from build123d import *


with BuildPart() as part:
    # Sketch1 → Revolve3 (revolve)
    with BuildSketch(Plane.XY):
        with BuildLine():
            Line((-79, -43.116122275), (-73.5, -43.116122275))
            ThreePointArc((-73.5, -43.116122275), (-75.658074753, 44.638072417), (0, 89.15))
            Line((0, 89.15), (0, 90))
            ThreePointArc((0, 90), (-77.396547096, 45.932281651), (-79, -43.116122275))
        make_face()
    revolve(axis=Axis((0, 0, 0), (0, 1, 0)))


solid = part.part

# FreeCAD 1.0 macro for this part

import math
import FreeCAD as App
import Part
import Sketcher
Q = App.Units.Quantity

doc = App.newDocument("Part")
body = doc.addObject("PartDesign::Body", "Body")

sketch1 = body.newObject("Sketcher::SketchObject", "Sketch")
sketch1.AttachmentSupport = (doc.getObject("XY_Plane"), [""])
sketch1.MapMode = "FlatFace"
sketch1.addGeometry(Part.LineSegment(App.Vector(-79, -43.1, 0), App.Vector(-73.5, -43.1, 0)), False)
sketch1.addGeometry(Part.ArcOfCircle(Part.Circle(App.Vector(0, 2.6, 0), App.Vector(0, 0, 1), 86.6), math.radians(90), math.radians(212)), False)
sketch1.addGeometry(Part.LineSegment(App.Vector(0, 89.2, 0), App.Vector(0, 90, 0)), False)
sketch1.addGeometry(Part.ArcOfCircle(Part.Circle(App.Vector(0, 0, 0), App.Vector(0, 0, 1), 90), math.radians(90), math.radians(209)), False)
sketch1.addConstraint(Sketcher.Constraint("Coincident", 0, 2, 1, 2))
sketch1.addConstraint(Sketcher.Constraint("Coincident", 1, 1, 2, 1))
sketch1.addConstraint(Sketcher.Constraint("Coincident", 2, 2, 3, 1))
sketch1.addConstraint(Sketcher.Constraint("Coincident", 3, 2, 0, 1))
sketch1.addConstraint(Sketcher.Constraint("Horizontal", 0))
sketch1.addConstraint(Sketcher.Constraint("Vertical", 2))
sketch1.addConstraint(Sketcher.Constraint("Coincident", 3, 3, -1, 1))
sketch1.addConstraint(Sketcher.Constraint("PointOnObject", 1, 3, -2))
sketch1.addConstraint(Sketcher.Constraint("PointOnObject", 1, 1, -2))
sketch1.addConstraint(Sketcher.Constraint("Radius", 3, Q("90 mm")))
sketch1.addConstraint(Sketcher.Constraint("DistanceX", 0, 1, 0, 2, Q("5.5 mm")))
sketch1.addConstraint(Sketcher.Constraint("DistanceX", 3, 2, -1, 1, Q("79 mm")))
sketch1.addConstraint(Sketcher.Constraint("DistanceY", 2, 1, 2, 2, Q("0.85 mm")))
revolution = body.newObject("PartDesign::Revolution", "Revolution")
revolution.Profile = sketch1
revolution.ReferenceAxis = (sketch1, ["V_Axis"])
revolution.Angle = 360

doc.recompute()
